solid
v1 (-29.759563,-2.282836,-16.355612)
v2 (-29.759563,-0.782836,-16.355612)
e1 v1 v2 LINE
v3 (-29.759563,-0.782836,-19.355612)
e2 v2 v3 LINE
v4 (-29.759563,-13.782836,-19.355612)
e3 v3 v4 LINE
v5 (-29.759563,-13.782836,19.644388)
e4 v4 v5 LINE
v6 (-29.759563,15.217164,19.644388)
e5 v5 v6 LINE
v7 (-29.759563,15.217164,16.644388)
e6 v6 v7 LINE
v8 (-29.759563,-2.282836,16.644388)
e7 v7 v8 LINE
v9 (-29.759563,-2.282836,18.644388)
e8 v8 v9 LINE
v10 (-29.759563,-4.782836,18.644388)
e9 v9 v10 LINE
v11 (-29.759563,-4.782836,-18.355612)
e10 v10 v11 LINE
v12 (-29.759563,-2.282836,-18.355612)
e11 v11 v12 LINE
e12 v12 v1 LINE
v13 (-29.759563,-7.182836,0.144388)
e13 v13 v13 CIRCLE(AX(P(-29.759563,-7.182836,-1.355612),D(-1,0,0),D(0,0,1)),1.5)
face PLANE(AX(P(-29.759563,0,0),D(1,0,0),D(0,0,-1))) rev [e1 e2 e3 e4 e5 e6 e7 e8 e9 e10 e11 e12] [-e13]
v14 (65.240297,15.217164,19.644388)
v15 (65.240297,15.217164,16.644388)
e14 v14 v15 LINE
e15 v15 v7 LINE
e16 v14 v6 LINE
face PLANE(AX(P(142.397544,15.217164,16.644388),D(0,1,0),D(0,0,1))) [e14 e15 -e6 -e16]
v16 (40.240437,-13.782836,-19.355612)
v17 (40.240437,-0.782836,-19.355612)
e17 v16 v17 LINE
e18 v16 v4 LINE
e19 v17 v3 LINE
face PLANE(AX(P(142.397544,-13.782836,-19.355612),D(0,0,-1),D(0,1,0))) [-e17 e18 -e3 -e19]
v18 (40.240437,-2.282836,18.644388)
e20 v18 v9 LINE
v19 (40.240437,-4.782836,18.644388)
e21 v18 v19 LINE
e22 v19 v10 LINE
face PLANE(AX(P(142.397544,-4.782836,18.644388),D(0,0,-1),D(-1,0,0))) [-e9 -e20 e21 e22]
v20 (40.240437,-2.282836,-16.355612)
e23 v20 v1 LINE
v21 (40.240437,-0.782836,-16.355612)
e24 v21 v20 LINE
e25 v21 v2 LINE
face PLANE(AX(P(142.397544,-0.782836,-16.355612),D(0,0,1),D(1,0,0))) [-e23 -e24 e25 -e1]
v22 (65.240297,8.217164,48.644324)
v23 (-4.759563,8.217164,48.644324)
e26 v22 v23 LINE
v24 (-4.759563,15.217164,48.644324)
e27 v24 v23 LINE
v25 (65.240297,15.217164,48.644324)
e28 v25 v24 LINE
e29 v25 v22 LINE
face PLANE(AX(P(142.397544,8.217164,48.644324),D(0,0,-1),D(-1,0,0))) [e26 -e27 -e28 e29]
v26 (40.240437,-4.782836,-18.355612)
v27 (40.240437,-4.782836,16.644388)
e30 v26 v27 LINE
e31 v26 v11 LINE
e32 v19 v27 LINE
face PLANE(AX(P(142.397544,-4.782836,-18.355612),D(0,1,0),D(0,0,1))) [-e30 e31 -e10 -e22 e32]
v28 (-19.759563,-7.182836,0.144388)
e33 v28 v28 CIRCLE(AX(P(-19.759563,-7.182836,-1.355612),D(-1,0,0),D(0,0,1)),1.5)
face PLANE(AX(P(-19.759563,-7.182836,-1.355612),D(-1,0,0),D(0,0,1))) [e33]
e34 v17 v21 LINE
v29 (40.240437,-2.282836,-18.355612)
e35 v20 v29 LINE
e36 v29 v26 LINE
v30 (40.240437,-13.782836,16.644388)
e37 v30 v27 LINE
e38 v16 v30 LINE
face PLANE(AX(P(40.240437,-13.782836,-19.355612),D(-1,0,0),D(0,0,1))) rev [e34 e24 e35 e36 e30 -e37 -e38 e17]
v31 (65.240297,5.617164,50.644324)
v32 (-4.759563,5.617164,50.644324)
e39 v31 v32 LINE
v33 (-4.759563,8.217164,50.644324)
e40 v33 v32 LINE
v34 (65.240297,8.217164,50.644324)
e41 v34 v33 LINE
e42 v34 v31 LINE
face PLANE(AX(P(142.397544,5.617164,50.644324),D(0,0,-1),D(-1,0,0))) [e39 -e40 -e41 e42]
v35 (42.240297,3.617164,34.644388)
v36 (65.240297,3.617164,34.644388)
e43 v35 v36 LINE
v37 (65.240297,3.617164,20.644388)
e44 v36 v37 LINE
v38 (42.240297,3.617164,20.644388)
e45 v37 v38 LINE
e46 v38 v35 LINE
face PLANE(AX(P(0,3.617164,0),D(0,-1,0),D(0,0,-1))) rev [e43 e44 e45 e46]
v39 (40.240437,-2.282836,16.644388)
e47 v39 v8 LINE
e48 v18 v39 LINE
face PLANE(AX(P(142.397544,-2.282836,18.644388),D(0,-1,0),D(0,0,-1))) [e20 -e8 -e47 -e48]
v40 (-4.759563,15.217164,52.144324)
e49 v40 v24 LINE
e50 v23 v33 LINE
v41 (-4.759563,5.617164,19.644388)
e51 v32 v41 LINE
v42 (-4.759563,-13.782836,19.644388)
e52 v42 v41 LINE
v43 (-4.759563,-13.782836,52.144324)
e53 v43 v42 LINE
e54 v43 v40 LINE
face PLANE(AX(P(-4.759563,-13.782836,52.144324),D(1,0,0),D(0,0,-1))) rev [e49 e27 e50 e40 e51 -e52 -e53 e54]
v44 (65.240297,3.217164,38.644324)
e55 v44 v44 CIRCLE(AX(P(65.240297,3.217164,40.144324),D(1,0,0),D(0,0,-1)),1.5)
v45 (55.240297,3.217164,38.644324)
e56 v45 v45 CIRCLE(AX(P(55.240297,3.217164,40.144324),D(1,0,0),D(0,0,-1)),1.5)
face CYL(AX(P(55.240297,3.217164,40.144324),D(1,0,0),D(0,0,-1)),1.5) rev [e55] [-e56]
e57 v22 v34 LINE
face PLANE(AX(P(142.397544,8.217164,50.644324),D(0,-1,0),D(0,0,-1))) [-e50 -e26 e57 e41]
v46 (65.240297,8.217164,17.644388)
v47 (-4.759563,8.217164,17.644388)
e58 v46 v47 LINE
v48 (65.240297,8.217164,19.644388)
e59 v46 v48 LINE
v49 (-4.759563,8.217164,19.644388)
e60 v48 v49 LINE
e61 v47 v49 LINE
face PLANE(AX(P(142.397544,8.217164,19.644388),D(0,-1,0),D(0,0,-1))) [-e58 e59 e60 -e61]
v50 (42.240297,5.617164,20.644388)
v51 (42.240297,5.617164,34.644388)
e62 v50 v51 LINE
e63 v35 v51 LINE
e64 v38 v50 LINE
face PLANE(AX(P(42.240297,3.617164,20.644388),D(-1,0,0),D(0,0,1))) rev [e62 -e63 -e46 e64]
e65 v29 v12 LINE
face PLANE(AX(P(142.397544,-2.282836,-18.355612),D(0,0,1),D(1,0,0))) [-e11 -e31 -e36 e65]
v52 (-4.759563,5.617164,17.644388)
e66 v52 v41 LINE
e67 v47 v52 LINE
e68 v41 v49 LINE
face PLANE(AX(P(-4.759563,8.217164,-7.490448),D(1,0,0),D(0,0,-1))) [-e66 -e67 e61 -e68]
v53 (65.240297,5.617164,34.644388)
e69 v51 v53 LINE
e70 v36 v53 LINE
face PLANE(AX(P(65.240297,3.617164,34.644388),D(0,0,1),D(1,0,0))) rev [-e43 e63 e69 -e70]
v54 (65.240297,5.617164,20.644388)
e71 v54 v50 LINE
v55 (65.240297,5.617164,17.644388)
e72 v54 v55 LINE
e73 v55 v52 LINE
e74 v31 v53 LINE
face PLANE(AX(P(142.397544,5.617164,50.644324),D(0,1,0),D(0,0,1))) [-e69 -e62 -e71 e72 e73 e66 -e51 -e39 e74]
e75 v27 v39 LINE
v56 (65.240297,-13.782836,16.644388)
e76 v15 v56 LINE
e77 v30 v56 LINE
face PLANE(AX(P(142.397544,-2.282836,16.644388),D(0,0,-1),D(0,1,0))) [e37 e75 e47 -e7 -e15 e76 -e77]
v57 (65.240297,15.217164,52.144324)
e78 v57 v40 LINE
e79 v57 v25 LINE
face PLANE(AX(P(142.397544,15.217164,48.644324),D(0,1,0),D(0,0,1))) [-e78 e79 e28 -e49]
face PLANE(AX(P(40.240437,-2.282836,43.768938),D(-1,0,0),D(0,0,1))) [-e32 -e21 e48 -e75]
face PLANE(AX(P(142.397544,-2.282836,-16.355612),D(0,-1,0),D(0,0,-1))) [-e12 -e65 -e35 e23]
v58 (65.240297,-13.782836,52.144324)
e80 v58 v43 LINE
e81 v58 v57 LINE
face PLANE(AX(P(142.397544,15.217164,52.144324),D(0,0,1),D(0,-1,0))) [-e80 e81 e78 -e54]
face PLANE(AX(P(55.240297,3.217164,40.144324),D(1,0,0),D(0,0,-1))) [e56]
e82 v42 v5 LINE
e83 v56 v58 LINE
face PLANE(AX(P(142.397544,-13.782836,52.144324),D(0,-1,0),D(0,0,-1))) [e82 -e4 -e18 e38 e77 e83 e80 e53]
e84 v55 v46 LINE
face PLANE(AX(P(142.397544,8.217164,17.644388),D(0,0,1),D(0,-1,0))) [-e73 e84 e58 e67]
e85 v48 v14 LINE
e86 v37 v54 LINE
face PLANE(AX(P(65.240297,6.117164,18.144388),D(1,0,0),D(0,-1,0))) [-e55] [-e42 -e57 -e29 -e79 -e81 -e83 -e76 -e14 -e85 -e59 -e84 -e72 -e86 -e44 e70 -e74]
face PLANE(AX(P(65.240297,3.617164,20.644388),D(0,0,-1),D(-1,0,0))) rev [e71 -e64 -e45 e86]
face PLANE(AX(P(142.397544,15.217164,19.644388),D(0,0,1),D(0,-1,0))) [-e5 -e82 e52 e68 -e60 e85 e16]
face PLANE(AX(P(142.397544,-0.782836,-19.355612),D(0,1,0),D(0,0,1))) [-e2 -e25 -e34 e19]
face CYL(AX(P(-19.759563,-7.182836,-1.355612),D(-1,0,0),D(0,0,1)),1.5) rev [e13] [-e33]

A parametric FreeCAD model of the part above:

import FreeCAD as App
import Part
import Sketcher

V = App.Vector


def add_polygon(sketch, points):
    """Adds a closed chain of lines whose ends are joined by coincident constraints."""
    first, n = sketch.GeometryCount, len(points)
    for a, b in zip(points, points[1:] + points[:1]):
        sketch.addGeometry(Part.LineSegment(App.Vector(*a, 0), App.Vector(*b, 0)), False)
    for i in range(n):
        sketch.addConstraint(Sketcher.Constraint("Coincident", first + i, 2, first + (i + 1) % n, 1))

doc = App.newDocument("Part")
body = doc.addObject("PartDesign::Body", "Body")

sketch1 = body.newObject("Sketcher::SketchObject", "Sketch")
sketch1.AttachmentSupport = (doc.getObject("YZ_Plane"), [""])
sketch1.MapMode = "FlatFace"
sketch1.AttachmentOffset = App.Placement(V(0, 0, -29.759563), App.Rotation())
add_polygon(sketch1, [(-2.3, -18.4), (-2.3, -16.4), (-0.8, -16.4), (-0.8, -19.4), (-13.8, -19.4), (-13.8, 52.1), (15.2, 52.1), (15.2, 48.6), (8.2, 48.6), (8.2, 50.6), (5.6, 50.6), (5.6, 17.6), (8.2, 17.6), (8.2, 19.6), (15.2, 19.6), (15.2, 16.6), (-2.3, 16.6), (-2.3, 18.6), (-4.8, 18.6), (-4.8, -18.4)])
sketch1.addConstraint(Sketcher.Constraint("Vertical", 0))
sketch1.addConstraint(Sketcher.Constraint("Horizontal", 1))
sketch1.addConstraint(Sketcher.Constraint("Vertical", 2))
sketch1.addConstraint(Sketcher.Constraint("Horizontal", 3))
sketch1.addConstraint(Sketcher.Constraint("Vertical", 4))
sketch1.addConstraint(Sketcher.Constraint("Horizontal", 5))
sketch1.addConstraint(Sketcher.Constraint("Vertical", 6))
sketch1.addConstraint(Sketcher.Constraint("Horizontal", 7))
sketch1.addConstraint(Sketcher.Constraint("Vertical", 8))
sketch1.addConstraint(Sketcher.Constraint("Horizontal", 9))
sketch1.addConstraint(Sketcher.Constraint("Vertical", 10))
sketch1.addConstraint(Sketcher.Constraint("Horizontal", 11))
sketch1.addConstraint(Sketcher.Constraint("Vertical", 12))
sketch1.addConstraint(Sketcher.Constraint("Horizontal", 13))
sketch1.addConstraint(Sketcher.Constraint("Vertical", 14))
sketch1.addConstraint(Sketcher.Constraint("Horizontal", 15))
sketch1.addConstraint(Sketcher.Constraint("Vertical", 16))
sketch1.addConstraint(Sketcher.Constraint("Horizontal", 17))
sketch1.addConstraint(Sketcher.Constraint("Vertical", 18))
sketch1.addConstraint(Sketcher.Constraint("Horizontal", 19))
sketch1.addConstraint(Sketcher.Constraint("Vertical", 8, 2, 11, 2))
sketch1.addConstraint(Sketcher.Constraint("Vertical", 6, 2, 13, 2))
sketch1.addConstraint(Sketcher.Constraint("Vertical", 0, 2, 15, 2))
sketch1.addConstraint(Sketcher.Constraint("Equal", 0, 8))
sketch1.addConstraint(Sketcher.Constraint("Equal", 8, 12))
sketch1.addConstraint(Sketcher.Constraint("Equal", 2, 14))
sketch1.addConstraint(Sketcher.Constraint("Equal", 12, 16))
sketch1.addConstraint(Sketcher.Constraint("DistanceX", 3, 2, 3, 1, 13.0))
sketch1.addConstraint(Sketcher.Constraint("DistanceX", 5, 1, 5, 2, 29.0))
sketch1.addConstraint(Sketcher.Constraint("DistanceX", 7, 2, 7, 1, 7.0))
sketch1.addConstraint(Sketcher.Constraint("DistanceY", 0, 1, 0, 2, 2.0))
sketch1.addConstraint(Sketcher.Constraint("DistanceY", 2, 2, 2, 1, 3.0))
sketch1.addConstraint(Sketcher.Constraint("DistanceY", 18, 2, 18, 1, 37.0))
sketch1.addConstraint(Sketcher.Constraint("DistanceX", 1, 1, 1, 2, 1.5))
sketch1.addConstraint(Sketcher.Constraint("DistanceX", 9, 2, 9, 1, 2.6))
sketch1.addConstraint(Sketcher.Constraint("DistanceX", 17, 2, 17, 1, 2.5))
sketch1.addConstraint(Sketcher.Constraint("DistanceY", 6, 2, 6, 1, 3.5))
sketch1.addConstraint(Sketcher.Constraint("DistanceY", 4, 1, 4, 2, 71.499936))
sketch1.addConstraint(Sketcher.Constraint("DistanceY", 0, 2, -1, 1, 16.355612))
sketch1.addConstraint(Sketcher.Constraint("DistanceX", 0, 2, -1, 1, 2.282836))
pad1 = body.newObject("PartDesign::Pad", "Pad")
pad1.Profile = sketch1
pad1.Length = 94.99986

sketch2 = body.newObject("Sketcher::SketchObject", "Sketch001")
sketch2.AttachmentSupport = (doc.getObject("XZ_Plane"), [""])
sketch2.MapMode = "FlatFace"
sketch2.AttachmentOffset = App.Placement(V(0, 0, -5.617164), App.Rotation())
add_polygon(sketch2, [(42, 21), (42, 35), (65, 35), (65, 21)])
sketch2.addConstraint(Sketcher.Constraint("Vertical", 0))
sketch2.addConstraint(Sketcher.Constraint("Horizontal", 1))
sketch2.addConstraint(Sketcher.Constraint("Vertical", 2))
sketch2.addConstraint(Sketcher.Constraint("Horizontal", 3))
sketch2.addConstraint(Sketcher.Constraint("DistanceX", 1, 1, 1, 2, 23.0))
sketch2.addConstraint(Sketcher.Constraint("DistanceY", 0, 1, 0, 2, 14.0))
sketch2.addConstraint(Sketcher.Constraint("DistanceY", -1, 1, 0, 2, 34.644388))
sketch2.addConstraint(Sketcher.Constraint("DistanceX", -1, 1, 0, 2, 42.240297))
pocket1 = body.newObject("PartDesign::Pocket", "Pocket")
pocket1.Profile = sketch2
pocket1.Length = 2
pocket1.Reversed = True

sketch3 = body.newObject("Sketcher::SketchObject", "Sketch002")
sketch3.AttachmentSupport = (doc.getObject("XZ_Plane"), [""])
sketch3.MapMode = "FlatFace"
sketch3.AttachmentOffset = App.Placement(V(0, 0, 0.782836), App.Rotation())
add_polygon(sketch3, [(-30, 20), (-30, 52), (-5, 52), (-5, 20)])
add_polygon(sketch3, [(40, -19), (40, 17), (65, 17), (65, -19)])
sketch3.addConstraint(Sketcher.Constraint("Vertical", 0))
sketch3.addConstraint(Sketcher.Constraint("Horizontal", 1))
sketch3.addConstraint(Sketcher.Constraint("Vertical", 2))
sketch3.addConstraint(Sketcher.Constraint("Horizontal", 3))
sketch3.addConstraint(Sketcher.Constraint("Vertical", 4))
sketch3.addConstraint(Sketcher.Constraint("Horizontal", 5))
sketch3.addConstraint(Sketcher.Constraint("Vertical", 6))
sketch3.addConstraint(Sketcher.Constraint("Horizontal", 7))
sketch3.addConstraint(Sketcher.Constraint("DistanceX", 1, 1, 1, 2, 25.0))
sketch3.addConstraint(Sketcher.Constraint("DistanceY", 4, 1, 4, 2, 36.0))
sketch3.addConstraint(Sketcher.Constraint("DistanceX", 2, 2, 4, 2, 45.0))
sketch3.addConstraint(Sketcher.Constraint("DistanceY", 4, 2, 2, 2, 3.0))
sketch3.addConstraint(Sketcher.Constraint("DistanceX", 5, 1, 5, 2, 24.99986))
sketch3.addConstraint(Sketcher.Constraint("DistanceY", 0, 1, 0, 2, 32.499936))
sketch3.addConstraint(Sketcher.Constraint("DistanceY", -1, 1, 2, 2, 19.644388))
sketch3.addConstraint(Sketcher.Constraint("DistanceX", 0, 2, -1, 1, 29.759563))
pocket2 = body.newObject("PartDesign::Pocket", "Pocket001")
pocket2.Profile = sketch3
pocket2.Type = "ThroughAll"
pocket2.Midplane = True

sketch4 = body.newObject("Sketcher::SketchObject", "Sketch003")
sketch4.AttachmentSupport = (doc.getObject("XY_Plane"), [""])
sketch4.MapMode = "FlatFace"
sketch4.AttachmentOffset = App.Placement(V(0, 0, 19.644388), App.Rotation())
add_polygon(sketch4, [(-29.8, 8.2), (-29.8, 5.6), (-4.8, 5.6), (-4.8, 8.2)])
sketch4.addConstraint(Sketcher.Constraint("Vertical", 0))
sketch4.addConstraint(Sketcher.Constraint("Horizontal", 1))
sketch4.addConstraint(Sketcher.Constraint("Vertical", 2))
sketch4.addConstraint(Sketcher.Constraint("Horizontal", 3))
sketch4.addConstraint(Sketcher.Constraint("DistanceX", 1, 1, 1, 2, 25.0))
sketch4.addConstraint(Sketcher.Constraint("DistanceY", 0, 2, 0, 1, 2.6))
sketch4.addConstraint(Sketcher.Constraint("DistanceX", 0, 2, -1, 1, 29.759563))
sketch4.addConstraint(Sketcher.Constraint("DistanceY", -1, 1, 0, 2, 5.617164))
pad2 = body.newObject("PartDesign::Pad", "Pad001")
pad2.Profile = sketch4
pad2.Length = 2
pad2.Reversed = True

sketch5 = body.newObject("Sketcher::SketchObject", "Sketch004")
sketch5.AttachmentSupport = (doc.getObject("XY_Plane"), [""])
sketch5.MapMode = "FlatFace"
sketch5.AttachmentOffset = App.Placement(V(0, 0, 16.644388), App.Rotation())
add_polygon(sketch5, [(65.2, -2.3), (65.2, -4.8), (40.2, -4.8), (40.2, -2.3)])
sketch5.addConstraint(Sketcher.Constraint("Vertical", 0))
sketch5.addConstraint(Sketcher.Constraint("Horizontal", 1))
sketch5.addConstraint(Sketcher.Constraint("Vertical", 2))
sketch5.addConstraint(Sketcher.Constraint("Horizontal", 3))
sketch5.addConstraint(Sketcher.Constraint("DistanceY", 0, 2, 0, 1, 2.5))
sketch5.addConstraint(Sketcher.Constraint("DistanceX", 1, 2, 1, 1, 24.99986))
sketch5.addConstraint(Sketcher.Constraint("DistanceX", -1, 1, 0, 2, 65.240297))
sketch5.addConstraint(Sketcher.Constraint("DistanceY", 0, 2, -1, 1, 4.782836))
pad3 = body.newObject("PartDesign::Pad", "Pad002")
pad3.Profile = sketch5
pad3.Length = 2

sketch6 = body.newObject("Sketcher::SketchObject", "Sketch005")
sketch6.AttachmentSupport = (doc.getObject("YZ_Plane"), [""])
sketch6.MapMode = "FlatFace"
sketch6.AttachmentOffset = App.Placement(V(0, 0, 65.240297), App.Rotation())
sketch6.addGeometry(Part.Circle(V(3.2, 40.1, 0), V(0, 0, 1), 1.5), False)
sketch6.addConstraint(Sketcher.Constraint("Diameter", 0, 3.0))
sketch6.addConstraint(Sketcher.Constraint("DistanceX", -1, 1, 0, 3, 3.217164))
sketch6.addConstraint(Sketcher.Constraint("DistanceY", -1, 1, 0, 3, 40.144324))
pocket3 = body.newObject("PartDesign::Pocket", "Pocket002")
pocket3.Profile = sketch6
pocket3.Length = 10

sketch7 = body.newObject("Sketcher::SketchObject", "Sketch006")
sketch7.AttachmentSupport = (doc.getObject("YZ_Plane"), [""])
sketch7.MapMode = "FlatFace"
sketch7.AttachmentOffset = App.Placement(V(0, 0, -29.759563), App.Rotation())
sketch7.addGeometry(Part.Circle(V(-7.2, -1.4, 0), V(0, 0, 1), 1.5), False)
sketch7.addConstraint(Sketcher.Constraint("Diameter", 0, 3.0))
sketch7.addConstraint(Sketcher.Constraint("DistanceY", 0, 3, -1, 1, 1.355612))
sketch7.addConstraint(Sketcher.Constraint("DistanceX", 0, 3, -1, 1, 7.182836))
pocket4 = body.newObject("PartDesign::Pocket", "Pocket003")
pocket4.Profile = sketch7
pocket4.Length = 10
pocket4.Reversed = True

doc.recompute()
